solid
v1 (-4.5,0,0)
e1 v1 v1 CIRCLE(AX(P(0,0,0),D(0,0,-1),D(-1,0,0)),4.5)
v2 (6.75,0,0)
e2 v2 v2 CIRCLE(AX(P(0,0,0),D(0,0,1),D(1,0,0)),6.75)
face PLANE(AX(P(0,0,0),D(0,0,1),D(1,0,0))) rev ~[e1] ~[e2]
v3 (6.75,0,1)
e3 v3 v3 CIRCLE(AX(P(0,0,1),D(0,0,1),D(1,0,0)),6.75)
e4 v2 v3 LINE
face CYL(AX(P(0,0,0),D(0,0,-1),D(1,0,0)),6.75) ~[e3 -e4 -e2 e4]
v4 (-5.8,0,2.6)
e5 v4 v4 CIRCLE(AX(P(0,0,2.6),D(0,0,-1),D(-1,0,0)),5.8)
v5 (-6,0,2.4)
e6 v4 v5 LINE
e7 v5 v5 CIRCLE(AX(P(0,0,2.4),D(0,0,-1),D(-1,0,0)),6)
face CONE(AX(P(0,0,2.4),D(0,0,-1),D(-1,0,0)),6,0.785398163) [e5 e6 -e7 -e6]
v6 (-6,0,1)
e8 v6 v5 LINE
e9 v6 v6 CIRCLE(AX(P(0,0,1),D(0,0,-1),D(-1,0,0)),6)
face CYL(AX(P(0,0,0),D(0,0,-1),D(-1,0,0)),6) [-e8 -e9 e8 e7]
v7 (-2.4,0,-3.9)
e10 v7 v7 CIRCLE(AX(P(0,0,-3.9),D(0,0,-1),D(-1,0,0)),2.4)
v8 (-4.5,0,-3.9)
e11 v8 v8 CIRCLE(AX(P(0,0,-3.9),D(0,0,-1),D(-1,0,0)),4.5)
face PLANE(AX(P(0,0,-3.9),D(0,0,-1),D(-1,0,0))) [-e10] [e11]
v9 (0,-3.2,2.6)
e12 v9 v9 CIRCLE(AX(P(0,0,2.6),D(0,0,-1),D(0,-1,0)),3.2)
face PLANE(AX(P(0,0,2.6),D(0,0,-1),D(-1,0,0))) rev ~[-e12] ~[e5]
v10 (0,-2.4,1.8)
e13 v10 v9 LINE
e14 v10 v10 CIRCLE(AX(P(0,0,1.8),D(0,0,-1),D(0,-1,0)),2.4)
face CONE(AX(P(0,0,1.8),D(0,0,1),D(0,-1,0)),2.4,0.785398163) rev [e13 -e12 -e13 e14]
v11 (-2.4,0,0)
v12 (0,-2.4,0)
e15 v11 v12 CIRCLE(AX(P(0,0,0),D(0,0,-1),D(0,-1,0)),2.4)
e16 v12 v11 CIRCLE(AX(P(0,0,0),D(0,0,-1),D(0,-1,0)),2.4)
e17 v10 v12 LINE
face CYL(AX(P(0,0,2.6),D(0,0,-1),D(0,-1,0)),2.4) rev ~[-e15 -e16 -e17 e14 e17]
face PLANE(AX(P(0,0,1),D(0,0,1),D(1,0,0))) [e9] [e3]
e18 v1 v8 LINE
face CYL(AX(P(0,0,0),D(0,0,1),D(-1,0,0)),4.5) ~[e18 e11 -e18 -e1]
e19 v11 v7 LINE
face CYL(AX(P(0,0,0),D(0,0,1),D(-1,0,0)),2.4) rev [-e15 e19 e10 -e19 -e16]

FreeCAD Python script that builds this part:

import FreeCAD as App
import Part
import Sketcher
from FreeCAD import Vector
Q = App.Units.Quantity


def edges_at(feature, points):
    """Names of the edges that pass closest to the given points."""
    edges = feature.Shape.Edges
    near = lambda p: min(range(len(edges)), key=lambda i: edges[i].distToShape(Part.Vertex(*p))[0])
    return sorted({f"Edge{near(p) + 1}" for p in points})

doc = App.newDocument("Part")
params = doc.addObject("Spreadsheet::Sheet", "Params")
for row, (alias, value) in enumerate([
    ("sketch1_diameter", "13.5 mm"),
    ("pad1_length", "1 mm"),
    ("sketch2_diameter", "12 mm"),
    ("pad2_length", "2.6 mm"),
    ("sketch3_diameter", "4.8 mm"),
    ("hole_diameter", "4.8 mm"),
    ("chamfer_size", "0.8 mm"),
    ("chamfer2_size", "0.2 mm"),
    ("sketch4_diameter", "9 mm"),
    ("sketch4_diameter2", "4.8 mm"),
    ("pad3_length", "3.9 mm"),
], start=1):
    params.set(f"A{row}", alias)
    params.set(f"B{row}", "=" + value)
    params.setAlias(f"B{row}", alias)

body = doc.addObject("PartDesign::Body", "Body")

sketch1 = doc.addObject("Sketcher::SketchObject", "Sketch")
body.addObject(sketch1)
sketch1.AttachmentSupport = (doc.XY_Plane, [""])
sketch1.MapMode = "FlatFace"
sketch1.addGeometry(Part.Circle(Vector(0, 0, 0), Vector(0, 0, 1), 7), False)
sketch1.addConstraint([
    Sketcher.Constraint("Coincident", 0, 3, -1, 1),
    Sketcher.Constraint("Diameter", 0, Q("13.5 mm")),
])
sketch1.setExpression("Constraints[1]", "Params.sketch1_diameter")
pad1 = doc.addObject("PartDesign::Pad", "Pad")
body.addObject(pad1)
pad1.Profile = sketch1
pad1.setExpression("Length", "Params.pad1_length")

sketch2 = doc.addObject("Sketcher::SketchObject", "Sketch001")
body.addObject(sketch2)
sketch2.AttachmentSupport = (doc.XY_Plane, [""])
sketch2.MapMode = "FlatFace"
sketch2.addGeometry(Part.Circle(Vector(0, 0, 0), Vector(0, 0, 1), 6), False)
sketch2.addConstraint([
    Sketcher.Constraint("Coincident", 0, 3, -1, 1),
    Sketcher.Constraint("Diameter", 0, Q("12 mm")),
])
sketch2.setExpression("Constraints[1]", "Params.sketch2_diameter")
pad2 = doc.addObject("PartDesign::Pad", "Pad001")
body.addObject(pad2)
pad2.Profile = sketch2
pad2.setExpression("Length", "Params.pad2_length")

sketch3 = doc.addObject("Sketcher::SketchObject", "Sketch002")
body.addObject(sketch3)
sketch3.AttachmentSupport = (doc.XY_Plane, [""])
sketch3.MapMode = "FlatFace"
sketch3.AttachmentOffset = App.Placement(Vector(0, 0, 2.6), App.Rotation())
sketch3.addGeometry(Part.Circle(Vector(0, 0, 0), Vector(0, 0, 1), 2.4), False)
sketch3.addConstraint([
    Sketcher.Constraint("Coincident", 0, 3, -1, 1),
    Sketcher.Constraint("Diameter", 0, Q("4.8 mm")),
])
sketch3.setExpression("Constraints[1]", "Params.sketch3_diameter")
doc.recompute()
hole = doc.addObject("PartDesign::Hole", "Hole")
body.addObject(hole)
hole.Profile = sketch3
hole.ThreadType = "None"
hole.setExpression("Diameter", "Params.hole_diameter")
hole.DepthType = "ThroughAll"
doc.recompute()

chamfer = doc.addObject("PartDesign::Chamfer", "Chamfer")
body.addObject(chamfer)
chamfer.Base = (hole, edges_at(hole, [(0, 2.4, 2.6)]))
chamfer.setExpression("Size", "Params.chamfer_size")
doc.recompute()

chamfer2 = doc.addObject("PartDesign::Chamfer", "Chamfer001")
body.addObject(chamfer2)
chamfer2.Base = (chamfer, edges_at(chamfer, [(6, 0, 2.6)]))
chamfer2.setExpression("Size", "Params.chamfer2_size")

sketch4 = doc.addObject("Sketcher::SketchObject", "Sketch003")
body.addObject(sketch4)
sketch4.AttachmentSupport = (doc.XY_Plane, [""])
sketch4.MapMode = "FlatFace"
sketch4.addGeometry([
    Part.Circle(Vector(0, 0, 0), Vector(0, 0, 1), 4.5),
    Part.Circle(Vector(0, 0, 0), Vector(0, 0, 1), 2.4),
], False)
sketch4.addConstraint([
    Sketcher.Constraint("Coincident", 0, 3, -1, 1),
    Sketcher.Constraint("Coincident", 1, 3, -1, 1),
    Sketcher.Constraint("Diameter", 0, Q("9 mm")),
    Sketcher.Constraint("Diameter", 1, Q("4.8 mm")),
])
sketch4.setExpression("Constraints[2]", "Params.sketch4_diameter")
sketch4.setExpression("Constraints[3]", "Params.sketch4_diameter2")
pad3 = doc.addObject("PartDesign::Pad", "Pad002")
body.addObject(pad3)
pad3.Profile = sketch4
pad3.setExpression("Length", "Params.pad3_length")
pad3.Reversed = True

doc.recompute()
